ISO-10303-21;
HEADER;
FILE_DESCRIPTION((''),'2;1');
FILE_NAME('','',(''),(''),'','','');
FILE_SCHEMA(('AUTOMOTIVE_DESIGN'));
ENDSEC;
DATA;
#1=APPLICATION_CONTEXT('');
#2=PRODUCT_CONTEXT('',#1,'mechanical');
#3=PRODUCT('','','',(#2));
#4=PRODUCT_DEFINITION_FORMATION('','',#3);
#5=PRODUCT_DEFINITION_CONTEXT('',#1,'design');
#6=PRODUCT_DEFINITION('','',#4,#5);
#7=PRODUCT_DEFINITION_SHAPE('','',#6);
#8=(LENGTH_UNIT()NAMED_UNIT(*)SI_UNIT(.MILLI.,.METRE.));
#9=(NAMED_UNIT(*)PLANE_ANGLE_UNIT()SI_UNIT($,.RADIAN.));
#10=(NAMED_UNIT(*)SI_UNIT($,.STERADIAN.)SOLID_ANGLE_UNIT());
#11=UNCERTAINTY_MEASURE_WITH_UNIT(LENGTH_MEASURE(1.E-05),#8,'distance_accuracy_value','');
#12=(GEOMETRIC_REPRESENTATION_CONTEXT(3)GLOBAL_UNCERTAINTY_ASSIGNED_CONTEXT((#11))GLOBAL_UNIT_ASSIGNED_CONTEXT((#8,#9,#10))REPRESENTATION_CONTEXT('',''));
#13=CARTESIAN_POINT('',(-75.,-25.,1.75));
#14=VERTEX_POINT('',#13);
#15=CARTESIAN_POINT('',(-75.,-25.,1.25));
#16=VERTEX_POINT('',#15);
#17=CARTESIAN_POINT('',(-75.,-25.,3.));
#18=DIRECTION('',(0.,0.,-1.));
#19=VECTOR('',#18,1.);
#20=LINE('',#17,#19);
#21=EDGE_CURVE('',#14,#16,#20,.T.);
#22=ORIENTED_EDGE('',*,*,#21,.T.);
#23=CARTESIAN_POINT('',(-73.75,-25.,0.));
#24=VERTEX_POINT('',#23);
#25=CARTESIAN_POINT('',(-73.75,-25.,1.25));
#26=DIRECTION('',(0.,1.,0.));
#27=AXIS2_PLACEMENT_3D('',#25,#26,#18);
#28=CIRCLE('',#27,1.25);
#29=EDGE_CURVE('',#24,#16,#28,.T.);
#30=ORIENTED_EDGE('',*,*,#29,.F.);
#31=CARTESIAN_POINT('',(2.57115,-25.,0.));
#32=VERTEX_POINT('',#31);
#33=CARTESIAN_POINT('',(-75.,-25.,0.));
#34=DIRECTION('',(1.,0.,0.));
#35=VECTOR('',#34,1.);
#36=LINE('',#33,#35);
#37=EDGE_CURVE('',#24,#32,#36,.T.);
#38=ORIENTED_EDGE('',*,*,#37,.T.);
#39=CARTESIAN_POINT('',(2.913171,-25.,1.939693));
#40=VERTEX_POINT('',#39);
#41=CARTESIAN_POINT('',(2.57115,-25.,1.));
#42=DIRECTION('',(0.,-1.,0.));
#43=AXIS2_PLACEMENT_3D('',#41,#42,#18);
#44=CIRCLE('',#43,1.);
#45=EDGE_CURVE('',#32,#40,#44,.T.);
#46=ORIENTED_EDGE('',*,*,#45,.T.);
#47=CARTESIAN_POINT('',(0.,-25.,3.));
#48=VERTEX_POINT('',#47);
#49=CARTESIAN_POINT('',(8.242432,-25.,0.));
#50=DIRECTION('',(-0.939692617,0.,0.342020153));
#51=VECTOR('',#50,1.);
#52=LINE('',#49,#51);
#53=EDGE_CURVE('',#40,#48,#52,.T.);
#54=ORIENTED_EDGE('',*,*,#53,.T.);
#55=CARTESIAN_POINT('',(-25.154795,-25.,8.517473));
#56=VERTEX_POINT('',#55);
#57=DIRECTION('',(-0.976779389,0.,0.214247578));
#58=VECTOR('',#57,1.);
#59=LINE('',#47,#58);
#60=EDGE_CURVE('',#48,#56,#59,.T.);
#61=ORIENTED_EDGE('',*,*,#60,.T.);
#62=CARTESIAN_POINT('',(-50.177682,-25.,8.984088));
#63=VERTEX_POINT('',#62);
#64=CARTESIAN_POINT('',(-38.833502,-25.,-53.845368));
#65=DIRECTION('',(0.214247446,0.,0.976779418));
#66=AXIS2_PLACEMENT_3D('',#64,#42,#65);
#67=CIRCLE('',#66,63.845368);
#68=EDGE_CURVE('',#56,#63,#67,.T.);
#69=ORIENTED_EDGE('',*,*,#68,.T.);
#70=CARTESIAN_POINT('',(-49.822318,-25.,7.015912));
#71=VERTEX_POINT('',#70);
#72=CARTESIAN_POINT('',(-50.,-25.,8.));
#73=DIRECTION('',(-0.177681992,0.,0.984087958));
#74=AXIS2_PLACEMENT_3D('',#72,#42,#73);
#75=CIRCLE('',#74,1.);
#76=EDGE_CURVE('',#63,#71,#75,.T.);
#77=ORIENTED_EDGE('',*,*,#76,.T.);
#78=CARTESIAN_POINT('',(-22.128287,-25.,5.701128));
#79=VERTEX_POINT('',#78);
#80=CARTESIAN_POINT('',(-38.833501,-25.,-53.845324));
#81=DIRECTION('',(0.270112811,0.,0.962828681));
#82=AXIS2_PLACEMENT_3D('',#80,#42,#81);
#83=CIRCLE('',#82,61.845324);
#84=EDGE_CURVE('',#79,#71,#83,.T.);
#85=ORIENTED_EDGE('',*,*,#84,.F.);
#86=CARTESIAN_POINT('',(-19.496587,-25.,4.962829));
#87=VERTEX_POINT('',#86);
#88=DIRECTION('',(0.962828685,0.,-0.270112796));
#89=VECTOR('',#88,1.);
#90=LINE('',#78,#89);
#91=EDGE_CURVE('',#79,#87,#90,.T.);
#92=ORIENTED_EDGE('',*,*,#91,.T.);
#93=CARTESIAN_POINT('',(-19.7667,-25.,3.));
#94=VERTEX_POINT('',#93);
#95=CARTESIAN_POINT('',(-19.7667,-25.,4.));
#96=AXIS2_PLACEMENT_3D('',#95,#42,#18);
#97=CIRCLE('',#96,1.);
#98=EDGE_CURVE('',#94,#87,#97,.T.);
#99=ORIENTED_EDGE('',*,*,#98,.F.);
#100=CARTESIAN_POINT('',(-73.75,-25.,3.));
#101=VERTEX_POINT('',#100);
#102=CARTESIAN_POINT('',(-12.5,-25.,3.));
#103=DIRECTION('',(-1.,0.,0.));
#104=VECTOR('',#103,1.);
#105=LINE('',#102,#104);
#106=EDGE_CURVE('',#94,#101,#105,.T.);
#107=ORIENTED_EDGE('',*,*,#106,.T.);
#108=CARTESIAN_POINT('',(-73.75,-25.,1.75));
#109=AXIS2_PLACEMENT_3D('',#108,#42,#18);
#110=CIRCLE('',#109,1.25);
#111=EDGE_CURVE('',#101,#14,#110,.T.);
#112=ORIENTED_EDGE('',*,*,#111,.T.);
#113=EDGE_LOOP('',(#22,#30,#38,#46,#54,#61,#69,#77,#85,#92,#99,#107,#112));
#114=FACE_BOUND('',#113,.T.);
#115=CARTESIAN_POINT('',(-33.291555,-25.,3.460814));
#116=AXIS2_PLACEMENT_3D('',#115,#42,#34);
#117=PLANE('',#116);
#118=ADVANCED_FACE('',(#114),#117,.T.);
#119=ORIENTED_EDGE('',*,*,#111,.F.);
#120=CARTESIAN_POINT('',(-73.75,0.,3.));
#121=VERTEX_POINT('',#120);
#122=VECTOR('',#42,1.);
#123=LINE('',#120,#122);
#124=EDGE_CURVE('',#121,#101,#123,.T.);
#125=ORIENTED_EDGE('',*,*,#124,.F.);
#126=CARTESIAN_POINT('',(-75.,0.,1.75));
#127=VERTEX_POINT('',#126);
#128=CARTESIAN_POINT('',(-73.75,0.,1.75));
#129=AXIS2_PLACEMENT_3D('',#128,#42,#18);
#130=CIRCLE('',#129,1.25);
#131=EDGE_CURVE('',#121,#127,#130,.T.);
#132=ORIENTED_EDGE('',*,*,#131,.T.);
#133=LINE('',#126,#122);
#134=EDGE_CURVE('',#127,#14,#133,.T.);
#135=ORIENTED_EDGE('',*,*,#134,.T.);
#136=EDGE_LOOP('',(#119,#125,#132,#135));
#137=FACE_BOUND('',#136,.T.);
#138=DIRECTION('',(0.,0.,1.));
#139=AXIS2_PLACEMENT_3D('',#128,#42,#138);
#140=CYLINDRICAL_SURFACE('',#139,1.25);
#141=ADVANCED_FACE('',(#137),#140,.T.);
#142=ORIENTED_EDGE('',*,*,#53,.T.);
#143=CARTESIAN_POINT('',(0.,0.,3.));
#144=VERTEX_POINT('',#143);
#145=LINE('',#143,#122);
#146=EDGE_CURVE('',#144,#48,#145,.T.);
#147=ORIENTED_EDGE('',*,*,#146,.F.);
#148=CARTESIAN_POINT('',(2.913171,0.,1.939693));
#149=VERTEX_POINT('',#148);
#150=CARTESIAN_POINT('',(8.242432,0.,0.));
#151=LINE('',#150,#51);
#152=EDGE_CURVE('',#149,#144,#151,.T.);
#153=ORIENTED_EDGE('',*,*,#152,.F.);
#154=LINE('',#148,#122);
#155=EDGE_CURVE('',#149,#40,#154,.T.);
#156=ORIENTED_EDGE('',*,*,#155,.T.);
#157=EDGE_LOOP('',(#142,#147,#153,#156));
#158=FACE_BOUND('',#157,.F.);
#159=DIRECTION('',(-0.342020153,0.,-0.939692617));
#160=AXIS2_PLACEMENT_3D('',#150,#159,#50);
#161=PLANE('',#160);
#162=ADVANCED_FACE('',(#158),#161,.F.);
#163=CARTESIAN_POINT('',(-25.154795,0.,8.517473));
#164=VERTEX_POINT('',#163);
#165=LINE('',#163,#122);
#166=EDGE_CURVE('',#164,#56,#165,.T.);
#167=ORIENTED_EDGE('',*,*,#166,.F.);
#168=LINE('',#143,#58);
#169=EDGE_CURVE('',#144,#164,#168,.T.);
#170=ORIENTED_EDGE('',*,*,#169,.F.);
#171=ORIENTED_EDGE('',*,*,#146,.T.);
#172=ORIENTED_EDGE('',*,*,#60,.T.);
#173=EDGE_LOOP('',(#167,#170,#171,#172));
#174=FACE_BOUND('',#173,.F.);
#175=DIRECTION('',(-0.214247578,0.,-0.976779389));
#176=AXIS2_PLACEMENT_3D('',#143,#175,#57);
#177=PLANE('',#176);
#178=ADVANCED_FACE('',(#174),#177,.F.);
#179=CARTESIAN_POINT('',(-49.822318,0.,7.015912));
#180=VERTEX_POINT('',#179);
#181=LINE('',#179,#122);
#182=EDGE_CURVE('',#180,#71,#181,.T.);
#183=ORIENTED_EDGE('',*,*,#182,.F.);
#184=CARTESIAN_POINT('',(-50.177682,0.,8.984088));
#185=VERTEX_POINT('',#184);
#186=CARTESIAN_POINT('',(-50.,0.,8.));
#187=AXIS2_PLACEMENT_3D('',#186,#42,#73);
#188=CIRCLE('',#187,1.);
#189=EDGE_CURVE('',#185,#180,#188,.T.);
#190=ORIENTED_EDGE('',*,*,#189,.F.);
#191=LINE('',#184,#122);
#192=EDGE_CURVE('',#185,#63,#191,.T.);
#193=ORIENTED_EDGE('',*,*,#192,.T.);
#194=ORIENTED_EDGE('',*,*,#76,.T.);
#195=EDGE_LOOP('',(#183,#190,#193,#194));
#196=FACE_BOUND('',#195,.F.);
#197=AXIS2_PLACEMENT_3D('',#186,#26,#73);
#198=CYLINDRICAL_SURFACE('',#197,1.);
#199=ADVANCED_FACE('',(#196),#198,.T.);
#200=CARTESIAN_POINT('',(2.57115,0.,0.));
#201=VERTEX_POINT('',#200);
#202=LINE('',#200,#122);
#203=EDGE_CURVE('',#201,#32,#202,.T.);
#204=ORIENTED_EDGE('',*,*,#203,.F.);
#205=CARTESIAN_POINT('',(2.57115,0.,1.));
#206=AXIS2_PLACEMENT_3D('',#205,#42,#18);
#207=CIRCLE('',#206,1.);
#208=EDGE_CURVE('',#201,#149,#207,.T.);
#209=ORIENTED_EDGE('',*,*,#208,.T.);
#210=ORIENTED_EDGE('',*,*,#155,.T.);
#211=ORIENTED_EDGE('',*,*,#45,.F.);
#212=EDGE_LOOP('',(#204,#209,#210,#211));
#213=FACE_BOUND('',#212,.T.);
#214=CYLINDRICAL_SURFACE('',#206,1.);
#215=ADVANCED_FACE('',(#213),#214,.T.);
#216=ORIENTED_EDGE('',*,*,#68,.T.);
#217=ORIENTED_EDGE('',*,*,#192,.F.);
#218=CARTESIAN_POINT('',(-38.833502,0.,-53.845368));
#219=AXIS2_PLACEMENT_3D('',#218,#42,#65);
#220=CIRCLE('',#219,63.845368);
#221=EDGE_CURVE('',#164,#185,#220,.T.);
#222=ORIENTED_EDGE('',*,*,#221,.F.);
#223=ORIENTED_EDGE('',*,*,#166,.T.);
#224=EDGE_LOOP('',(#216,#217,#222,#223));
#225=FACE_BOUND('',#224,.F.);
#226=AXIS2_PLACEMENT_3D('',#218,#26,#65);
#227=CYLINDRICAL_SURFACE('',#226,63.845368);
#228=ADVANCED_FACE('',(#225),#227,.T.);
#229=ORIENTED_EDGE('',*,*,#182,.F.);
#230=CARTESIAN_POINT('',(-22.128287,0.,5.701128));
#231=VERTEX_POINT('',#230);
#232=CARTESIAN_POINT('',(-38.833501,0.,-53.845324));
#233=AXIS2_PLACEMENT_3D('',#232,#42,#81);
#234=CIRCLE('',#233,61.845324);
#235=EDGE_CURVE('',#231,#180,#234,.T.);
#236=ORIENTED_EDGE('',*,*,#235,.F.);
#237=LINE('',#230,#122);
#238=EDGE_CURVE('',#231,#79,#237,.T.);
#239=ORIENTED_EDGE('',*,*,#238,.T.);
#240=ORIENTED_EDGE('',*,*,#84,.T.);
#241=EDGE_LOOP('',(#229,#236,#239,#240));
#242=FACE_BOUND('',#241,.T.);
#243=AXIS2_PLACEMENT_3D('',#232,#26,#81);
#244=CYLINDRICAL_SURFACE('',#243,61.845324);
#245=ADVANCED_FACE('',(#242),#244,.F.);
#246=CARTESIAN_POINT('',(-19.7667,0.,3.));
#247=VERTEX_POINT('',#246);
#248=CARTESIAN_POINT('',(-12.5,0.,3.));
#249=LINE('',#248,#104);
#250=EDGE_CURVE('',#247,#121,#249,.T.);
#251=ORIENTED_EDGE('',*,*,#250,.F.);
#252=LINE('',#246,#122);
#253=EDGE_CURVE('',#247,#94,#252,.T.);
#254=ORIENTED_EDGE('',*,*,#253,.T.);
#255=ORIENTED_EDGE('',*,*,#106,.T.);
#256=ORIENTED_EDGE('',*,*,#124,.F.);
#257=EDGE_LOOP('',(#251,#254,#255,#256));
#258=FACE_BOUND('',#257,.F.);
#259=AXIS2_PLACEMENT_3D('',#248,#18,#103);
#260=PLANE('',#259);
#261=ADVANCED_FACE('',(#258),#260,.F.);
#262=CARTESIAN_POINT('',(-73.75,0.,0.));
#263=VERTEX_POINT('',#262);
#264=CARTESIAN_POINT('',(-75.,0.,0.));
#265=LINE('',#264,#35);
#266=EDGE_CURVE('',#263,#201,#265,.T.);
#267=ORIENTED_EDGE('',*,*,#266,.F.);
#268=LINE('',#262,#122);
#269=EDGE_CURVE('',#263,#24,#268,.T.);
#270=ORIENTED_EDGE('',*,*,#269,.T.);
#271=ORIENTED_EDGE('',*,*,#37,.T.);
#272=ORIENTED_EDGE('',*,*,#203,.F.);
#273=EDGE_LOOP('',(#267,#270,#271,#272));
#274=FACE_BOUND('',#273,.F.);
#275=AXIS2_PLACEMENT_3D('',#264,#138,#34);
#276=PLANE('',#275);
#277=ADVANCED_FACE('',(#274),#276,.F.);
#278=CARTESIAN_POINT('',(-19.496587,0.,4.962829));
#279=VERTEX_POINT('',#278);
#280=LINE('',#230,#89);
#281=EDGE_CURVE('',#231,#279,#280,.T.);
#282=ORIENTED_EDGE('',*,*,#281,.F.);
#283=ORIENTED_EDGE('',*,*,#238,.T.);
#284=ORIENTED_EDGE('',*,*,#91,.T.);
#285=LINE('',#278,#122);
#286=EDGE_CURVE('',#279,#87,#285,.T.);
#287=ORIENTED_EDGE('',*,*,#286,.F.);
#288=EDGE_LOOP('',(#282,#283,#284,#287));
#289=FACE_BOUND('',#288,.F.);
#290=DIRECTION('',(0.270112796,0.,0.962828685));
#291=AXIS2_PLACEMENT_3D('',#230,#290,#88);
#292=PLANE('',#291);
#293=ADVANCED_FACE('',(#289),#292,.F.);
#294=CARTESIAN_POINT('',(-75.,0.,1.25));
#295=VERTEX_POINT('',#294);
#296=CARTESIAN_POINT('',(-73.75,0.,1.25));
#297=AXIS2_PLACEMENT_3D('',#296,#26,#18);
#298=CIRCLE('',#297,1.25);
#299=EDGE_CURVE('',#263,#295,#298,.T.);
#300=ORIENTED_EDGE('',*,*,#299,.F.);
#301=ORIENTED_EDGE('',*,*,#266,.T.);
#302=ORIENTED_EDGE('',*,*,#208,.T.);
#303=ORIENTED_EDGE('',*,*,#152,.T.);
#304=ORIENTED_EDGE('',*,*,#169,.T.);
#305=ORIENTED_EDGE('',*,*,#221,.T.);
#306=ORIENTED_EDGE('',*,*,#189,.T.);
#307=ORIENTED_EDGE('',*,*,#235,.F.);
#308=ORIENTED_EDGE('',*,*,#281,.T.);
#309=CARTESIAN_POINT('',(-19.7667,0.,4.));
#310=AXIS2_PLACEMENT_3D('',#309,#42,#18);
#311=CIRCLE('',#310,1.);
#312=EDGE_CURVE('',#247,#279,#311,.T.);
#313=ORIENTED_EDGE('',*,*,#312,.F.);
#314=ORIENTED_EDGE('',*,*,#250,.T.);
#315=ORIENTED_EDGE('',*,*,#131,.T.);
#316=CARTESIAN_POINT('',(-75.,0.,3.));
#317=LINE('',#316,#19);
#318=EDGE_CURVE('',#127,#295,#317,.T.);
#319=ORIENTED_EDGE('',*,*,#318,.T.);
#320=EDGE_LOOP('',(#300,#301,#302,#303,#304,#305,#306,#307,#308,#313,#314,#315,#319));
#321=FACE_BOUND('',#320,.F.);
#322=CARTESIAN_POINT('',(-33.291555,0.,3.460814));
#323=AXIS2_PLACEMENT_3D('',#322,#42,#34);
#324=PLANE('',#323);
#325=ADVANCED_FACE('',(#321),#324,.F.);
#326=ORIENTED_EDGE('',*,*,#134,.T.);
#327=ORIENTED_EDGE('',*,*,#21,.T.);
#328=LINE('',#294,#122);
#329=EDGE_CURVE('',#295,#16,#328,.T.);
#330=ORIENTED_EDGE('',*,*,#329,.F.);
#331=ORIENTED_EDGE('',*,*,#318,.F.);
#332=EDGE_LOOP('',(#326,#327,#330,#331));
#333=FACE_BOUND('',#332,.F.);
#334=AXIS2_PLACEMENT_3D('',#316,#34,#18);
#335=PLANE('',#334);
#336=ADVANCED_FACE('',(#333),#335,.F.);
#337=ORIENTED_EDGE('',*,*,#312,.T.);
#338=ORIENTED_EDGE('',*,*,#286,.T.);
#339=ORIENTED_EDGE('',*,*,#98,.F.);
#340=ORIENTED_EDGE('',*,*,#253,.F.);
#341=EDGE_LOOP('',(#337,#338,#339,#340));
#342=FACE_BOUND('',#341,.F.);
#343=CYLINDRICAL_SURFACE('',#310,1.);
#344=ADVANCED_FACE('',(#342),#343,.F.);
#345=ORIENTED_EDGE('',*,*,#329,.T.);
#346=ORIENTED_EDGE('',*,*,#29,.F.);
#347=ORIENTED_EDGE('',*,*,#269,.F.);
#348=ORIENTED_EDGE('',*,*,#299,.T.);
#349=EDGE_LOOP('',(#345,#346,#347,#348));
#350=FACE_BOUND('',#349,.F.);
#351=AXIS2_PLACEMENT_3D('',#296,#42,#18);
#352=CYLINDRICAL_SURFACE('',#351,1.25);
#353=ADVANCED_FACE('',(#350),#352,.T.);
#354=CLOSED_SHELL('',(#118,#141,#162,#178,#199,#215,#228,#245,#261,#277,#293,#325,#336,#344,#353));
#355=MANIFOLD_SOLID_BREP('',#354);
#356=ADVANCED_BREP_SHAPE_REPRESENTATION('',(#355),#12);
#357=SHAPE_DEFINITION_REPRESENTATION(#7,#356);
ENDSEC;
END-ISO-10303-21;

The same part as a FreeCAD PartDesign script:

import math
import FreeCAD as App
import Part
import Sketcher
Q = App.Units.Quantity


def edges_at(feature, points):
    """Names of the edges that pass closest to the given points."""
    edges = feature.Shape.Edges
    near = lambda p: min(range(len(edges)), key=lambda i: edges[i].distToShape(Part.Vertex(*p))[0])
    return sorted({f"Edge{near(p) + 1}" for p in points})

doc = App.newDocument("Part")
params = doc.addObject("Spreadsheet::Sheet", "Params")
for row, (alias, value) in enumerate([
    ("sketch1_radius", "1 mm"),
    ("sketch1_height", "3 mm"),
    ("sketch1_length", "10 mm"),
    ("sketch1_width", "62.5 mm"),
    ("pad1_length", "25 mm"),
    ("fillet_radius", "1.25 mm"),
    ("fillet2_radius", "1 mm"),
], start=1):
    params.set(f"A{row}", alias)
    params.set(f"B{row}", "=" + value)
    params.setAlias(f"B{row}", alias)

body = doc.addObject("PartDesign::Body", "Body")

# Sketch on XZ plane
sketch1 = body.newObject("Sketcher::SketchObject", "Sketch")
sketch1.AttachmentSupport = (doc.getObject("XZ_Plane"), [""])
sketch1.MapMode = "FlatFace"
sketch1.addGeometry([
    Part.LineSegment(App.Vector(-75, 0, 0), App.Vector(8.2, 0, 0)),  # 0
    Part.LineSegment(App.Vector(8.2, 0, 0), App.Vector(0, 3, 0)),  # 1
    Part.LineSegment(App.Vector(0, 3, 0), App.Vector(-25.2, 8.5, 0)),  # 2
    Part.ArcOfCircle(Part.Circle(App.Vector(-38.8, -53.8, 0), App.Vector(0, 0, 1), 63.8), math.radians(78), math.radians(100)),  # 3
    Part.ArcOfCircle(Part.Circle(App.Vector(-50, 8, 0), App.Vector(0, 0, 1), 1), math.radians(100), math.radians(280)),  # 4
    Part.ArcOfCircle(Part.Circle(App.Vector(-38.8, -53.8, 0), App.Vector(0, 0, 1), 61.8), math.radians(74), math.radians(100)),  # 5
    Part.LineSegment(App.Vector(-22.1, 5.7, 0), App.Vector(-12.5, 3, 0)),  # 6
    Part.LineSegment(App.Vector(-12.5, 3, 0), App.Vector(-75, 3, 0)),  # 7
    Part.LineSegment(App.Vector(-75, 3, 0), App.Vector(-75, 0, 0)),  # 8
], False)
sketch1.addConstraint([
    Sketcher.Constraint("Coincident", 0, 2, 1, 1),
    Sketcher.Constraint("Coincident", 1, 2, 2, 1),
    Sketcher.Constraint("Tangent", 2, 2, 3, 1),
    Sketcher.Constraint("Tangent", 3, 2, 4, 1),
    Sketcher.Constraint("Tangent", 4, 2, 5, 2),
    Sketcher.Constraint("Tangent", 5, 1, 6, 1),
    Sketcher.Constraint("Coincident", 6, 2, 7, 1),
    Sketcher.Constraint("Coincident", 7, 2, 8, 1),
    Sketcher.Constraint("Coincident", 8, 2, 0, 1),
    Sketcher.Constraint("Horizontal", 0),
    Sketcher.Constraint("Horizontal", 7),
    Sketcher.Constraint("Vertical", 8),
    Sketcher.Constraint("PointOnObject", 0, 2, -1),
    Sketcher.Constraint("PointOnObject", 1, 2, -2),
    Sketcher.Constraint("Horizontal", 1, 2, 6, 2),
    Sketcher.Constraint("Vertical", 3, 3, 5, 3),
    Sketcher.Constraint("Radius", 4, 1.0),
    Sketcher.Constraint("DistanceY", 8, 2, 8, 1, 3.0),
    Sketcher.Constraint("Angle", 1, Q("159.999999 deg")),
    Sketcher.Constraint("Distance", 6, 10.0),
    Sketcher.Constraint("DistanceX", 7, 2, 7, 1, 62.5),
    Sketcher.Constraint("DistanceX", 4, 3, -1, 1, 50.0),
    Sketcher.Constraint("DistanceY", -1, 1, 4, 3, 8.0),
    Sketcher.Constraint("DistanceX", 7, 2, -1, 1, 75.0),
    Sketcher.Constraint("Radius", 3, 63.845368),
    Sketcher.Constraint("Radius", 5, 61.845324),
])
sketch1.setExpression("Constraints[16]", "Params.sketch1_radius")
sketch1.setExpression("Constraints[17]", "Params.sketch1_height")
sketch1.setExpression("Constraints[19]", "Params.sketch1_length")
sketch1.setExpression("Constraints[20]", "Params.sketch1_width")
pad1 = body.newObject("PartDesign::Pad", "Pad")
pad1.Profile = sketch1
pad1.setExpression("Length", "Params.pad1_length")
doc.recompute()

fillet = body.newObject("PartDesign::Fillet", "Fillet")
fillet.Base = (pad1, edges_at(pad1, [(-75, -12.5, 3), (-75, -12.5, 0)]))
fillet.setExpression("Radius", "Params.fillet_radius")
doc.recompute()

fillet2 = body.newObject("PartDesign::Fillet", "Fillet001")
fillet2.Base = (fillet, edges_at(fillet, [(-12.5, -12.5, 3), (8.242, -12.5, 0)]))
fillet2.setExpression("Radius", "Params.fillet2_radius")

doc.recompute()
